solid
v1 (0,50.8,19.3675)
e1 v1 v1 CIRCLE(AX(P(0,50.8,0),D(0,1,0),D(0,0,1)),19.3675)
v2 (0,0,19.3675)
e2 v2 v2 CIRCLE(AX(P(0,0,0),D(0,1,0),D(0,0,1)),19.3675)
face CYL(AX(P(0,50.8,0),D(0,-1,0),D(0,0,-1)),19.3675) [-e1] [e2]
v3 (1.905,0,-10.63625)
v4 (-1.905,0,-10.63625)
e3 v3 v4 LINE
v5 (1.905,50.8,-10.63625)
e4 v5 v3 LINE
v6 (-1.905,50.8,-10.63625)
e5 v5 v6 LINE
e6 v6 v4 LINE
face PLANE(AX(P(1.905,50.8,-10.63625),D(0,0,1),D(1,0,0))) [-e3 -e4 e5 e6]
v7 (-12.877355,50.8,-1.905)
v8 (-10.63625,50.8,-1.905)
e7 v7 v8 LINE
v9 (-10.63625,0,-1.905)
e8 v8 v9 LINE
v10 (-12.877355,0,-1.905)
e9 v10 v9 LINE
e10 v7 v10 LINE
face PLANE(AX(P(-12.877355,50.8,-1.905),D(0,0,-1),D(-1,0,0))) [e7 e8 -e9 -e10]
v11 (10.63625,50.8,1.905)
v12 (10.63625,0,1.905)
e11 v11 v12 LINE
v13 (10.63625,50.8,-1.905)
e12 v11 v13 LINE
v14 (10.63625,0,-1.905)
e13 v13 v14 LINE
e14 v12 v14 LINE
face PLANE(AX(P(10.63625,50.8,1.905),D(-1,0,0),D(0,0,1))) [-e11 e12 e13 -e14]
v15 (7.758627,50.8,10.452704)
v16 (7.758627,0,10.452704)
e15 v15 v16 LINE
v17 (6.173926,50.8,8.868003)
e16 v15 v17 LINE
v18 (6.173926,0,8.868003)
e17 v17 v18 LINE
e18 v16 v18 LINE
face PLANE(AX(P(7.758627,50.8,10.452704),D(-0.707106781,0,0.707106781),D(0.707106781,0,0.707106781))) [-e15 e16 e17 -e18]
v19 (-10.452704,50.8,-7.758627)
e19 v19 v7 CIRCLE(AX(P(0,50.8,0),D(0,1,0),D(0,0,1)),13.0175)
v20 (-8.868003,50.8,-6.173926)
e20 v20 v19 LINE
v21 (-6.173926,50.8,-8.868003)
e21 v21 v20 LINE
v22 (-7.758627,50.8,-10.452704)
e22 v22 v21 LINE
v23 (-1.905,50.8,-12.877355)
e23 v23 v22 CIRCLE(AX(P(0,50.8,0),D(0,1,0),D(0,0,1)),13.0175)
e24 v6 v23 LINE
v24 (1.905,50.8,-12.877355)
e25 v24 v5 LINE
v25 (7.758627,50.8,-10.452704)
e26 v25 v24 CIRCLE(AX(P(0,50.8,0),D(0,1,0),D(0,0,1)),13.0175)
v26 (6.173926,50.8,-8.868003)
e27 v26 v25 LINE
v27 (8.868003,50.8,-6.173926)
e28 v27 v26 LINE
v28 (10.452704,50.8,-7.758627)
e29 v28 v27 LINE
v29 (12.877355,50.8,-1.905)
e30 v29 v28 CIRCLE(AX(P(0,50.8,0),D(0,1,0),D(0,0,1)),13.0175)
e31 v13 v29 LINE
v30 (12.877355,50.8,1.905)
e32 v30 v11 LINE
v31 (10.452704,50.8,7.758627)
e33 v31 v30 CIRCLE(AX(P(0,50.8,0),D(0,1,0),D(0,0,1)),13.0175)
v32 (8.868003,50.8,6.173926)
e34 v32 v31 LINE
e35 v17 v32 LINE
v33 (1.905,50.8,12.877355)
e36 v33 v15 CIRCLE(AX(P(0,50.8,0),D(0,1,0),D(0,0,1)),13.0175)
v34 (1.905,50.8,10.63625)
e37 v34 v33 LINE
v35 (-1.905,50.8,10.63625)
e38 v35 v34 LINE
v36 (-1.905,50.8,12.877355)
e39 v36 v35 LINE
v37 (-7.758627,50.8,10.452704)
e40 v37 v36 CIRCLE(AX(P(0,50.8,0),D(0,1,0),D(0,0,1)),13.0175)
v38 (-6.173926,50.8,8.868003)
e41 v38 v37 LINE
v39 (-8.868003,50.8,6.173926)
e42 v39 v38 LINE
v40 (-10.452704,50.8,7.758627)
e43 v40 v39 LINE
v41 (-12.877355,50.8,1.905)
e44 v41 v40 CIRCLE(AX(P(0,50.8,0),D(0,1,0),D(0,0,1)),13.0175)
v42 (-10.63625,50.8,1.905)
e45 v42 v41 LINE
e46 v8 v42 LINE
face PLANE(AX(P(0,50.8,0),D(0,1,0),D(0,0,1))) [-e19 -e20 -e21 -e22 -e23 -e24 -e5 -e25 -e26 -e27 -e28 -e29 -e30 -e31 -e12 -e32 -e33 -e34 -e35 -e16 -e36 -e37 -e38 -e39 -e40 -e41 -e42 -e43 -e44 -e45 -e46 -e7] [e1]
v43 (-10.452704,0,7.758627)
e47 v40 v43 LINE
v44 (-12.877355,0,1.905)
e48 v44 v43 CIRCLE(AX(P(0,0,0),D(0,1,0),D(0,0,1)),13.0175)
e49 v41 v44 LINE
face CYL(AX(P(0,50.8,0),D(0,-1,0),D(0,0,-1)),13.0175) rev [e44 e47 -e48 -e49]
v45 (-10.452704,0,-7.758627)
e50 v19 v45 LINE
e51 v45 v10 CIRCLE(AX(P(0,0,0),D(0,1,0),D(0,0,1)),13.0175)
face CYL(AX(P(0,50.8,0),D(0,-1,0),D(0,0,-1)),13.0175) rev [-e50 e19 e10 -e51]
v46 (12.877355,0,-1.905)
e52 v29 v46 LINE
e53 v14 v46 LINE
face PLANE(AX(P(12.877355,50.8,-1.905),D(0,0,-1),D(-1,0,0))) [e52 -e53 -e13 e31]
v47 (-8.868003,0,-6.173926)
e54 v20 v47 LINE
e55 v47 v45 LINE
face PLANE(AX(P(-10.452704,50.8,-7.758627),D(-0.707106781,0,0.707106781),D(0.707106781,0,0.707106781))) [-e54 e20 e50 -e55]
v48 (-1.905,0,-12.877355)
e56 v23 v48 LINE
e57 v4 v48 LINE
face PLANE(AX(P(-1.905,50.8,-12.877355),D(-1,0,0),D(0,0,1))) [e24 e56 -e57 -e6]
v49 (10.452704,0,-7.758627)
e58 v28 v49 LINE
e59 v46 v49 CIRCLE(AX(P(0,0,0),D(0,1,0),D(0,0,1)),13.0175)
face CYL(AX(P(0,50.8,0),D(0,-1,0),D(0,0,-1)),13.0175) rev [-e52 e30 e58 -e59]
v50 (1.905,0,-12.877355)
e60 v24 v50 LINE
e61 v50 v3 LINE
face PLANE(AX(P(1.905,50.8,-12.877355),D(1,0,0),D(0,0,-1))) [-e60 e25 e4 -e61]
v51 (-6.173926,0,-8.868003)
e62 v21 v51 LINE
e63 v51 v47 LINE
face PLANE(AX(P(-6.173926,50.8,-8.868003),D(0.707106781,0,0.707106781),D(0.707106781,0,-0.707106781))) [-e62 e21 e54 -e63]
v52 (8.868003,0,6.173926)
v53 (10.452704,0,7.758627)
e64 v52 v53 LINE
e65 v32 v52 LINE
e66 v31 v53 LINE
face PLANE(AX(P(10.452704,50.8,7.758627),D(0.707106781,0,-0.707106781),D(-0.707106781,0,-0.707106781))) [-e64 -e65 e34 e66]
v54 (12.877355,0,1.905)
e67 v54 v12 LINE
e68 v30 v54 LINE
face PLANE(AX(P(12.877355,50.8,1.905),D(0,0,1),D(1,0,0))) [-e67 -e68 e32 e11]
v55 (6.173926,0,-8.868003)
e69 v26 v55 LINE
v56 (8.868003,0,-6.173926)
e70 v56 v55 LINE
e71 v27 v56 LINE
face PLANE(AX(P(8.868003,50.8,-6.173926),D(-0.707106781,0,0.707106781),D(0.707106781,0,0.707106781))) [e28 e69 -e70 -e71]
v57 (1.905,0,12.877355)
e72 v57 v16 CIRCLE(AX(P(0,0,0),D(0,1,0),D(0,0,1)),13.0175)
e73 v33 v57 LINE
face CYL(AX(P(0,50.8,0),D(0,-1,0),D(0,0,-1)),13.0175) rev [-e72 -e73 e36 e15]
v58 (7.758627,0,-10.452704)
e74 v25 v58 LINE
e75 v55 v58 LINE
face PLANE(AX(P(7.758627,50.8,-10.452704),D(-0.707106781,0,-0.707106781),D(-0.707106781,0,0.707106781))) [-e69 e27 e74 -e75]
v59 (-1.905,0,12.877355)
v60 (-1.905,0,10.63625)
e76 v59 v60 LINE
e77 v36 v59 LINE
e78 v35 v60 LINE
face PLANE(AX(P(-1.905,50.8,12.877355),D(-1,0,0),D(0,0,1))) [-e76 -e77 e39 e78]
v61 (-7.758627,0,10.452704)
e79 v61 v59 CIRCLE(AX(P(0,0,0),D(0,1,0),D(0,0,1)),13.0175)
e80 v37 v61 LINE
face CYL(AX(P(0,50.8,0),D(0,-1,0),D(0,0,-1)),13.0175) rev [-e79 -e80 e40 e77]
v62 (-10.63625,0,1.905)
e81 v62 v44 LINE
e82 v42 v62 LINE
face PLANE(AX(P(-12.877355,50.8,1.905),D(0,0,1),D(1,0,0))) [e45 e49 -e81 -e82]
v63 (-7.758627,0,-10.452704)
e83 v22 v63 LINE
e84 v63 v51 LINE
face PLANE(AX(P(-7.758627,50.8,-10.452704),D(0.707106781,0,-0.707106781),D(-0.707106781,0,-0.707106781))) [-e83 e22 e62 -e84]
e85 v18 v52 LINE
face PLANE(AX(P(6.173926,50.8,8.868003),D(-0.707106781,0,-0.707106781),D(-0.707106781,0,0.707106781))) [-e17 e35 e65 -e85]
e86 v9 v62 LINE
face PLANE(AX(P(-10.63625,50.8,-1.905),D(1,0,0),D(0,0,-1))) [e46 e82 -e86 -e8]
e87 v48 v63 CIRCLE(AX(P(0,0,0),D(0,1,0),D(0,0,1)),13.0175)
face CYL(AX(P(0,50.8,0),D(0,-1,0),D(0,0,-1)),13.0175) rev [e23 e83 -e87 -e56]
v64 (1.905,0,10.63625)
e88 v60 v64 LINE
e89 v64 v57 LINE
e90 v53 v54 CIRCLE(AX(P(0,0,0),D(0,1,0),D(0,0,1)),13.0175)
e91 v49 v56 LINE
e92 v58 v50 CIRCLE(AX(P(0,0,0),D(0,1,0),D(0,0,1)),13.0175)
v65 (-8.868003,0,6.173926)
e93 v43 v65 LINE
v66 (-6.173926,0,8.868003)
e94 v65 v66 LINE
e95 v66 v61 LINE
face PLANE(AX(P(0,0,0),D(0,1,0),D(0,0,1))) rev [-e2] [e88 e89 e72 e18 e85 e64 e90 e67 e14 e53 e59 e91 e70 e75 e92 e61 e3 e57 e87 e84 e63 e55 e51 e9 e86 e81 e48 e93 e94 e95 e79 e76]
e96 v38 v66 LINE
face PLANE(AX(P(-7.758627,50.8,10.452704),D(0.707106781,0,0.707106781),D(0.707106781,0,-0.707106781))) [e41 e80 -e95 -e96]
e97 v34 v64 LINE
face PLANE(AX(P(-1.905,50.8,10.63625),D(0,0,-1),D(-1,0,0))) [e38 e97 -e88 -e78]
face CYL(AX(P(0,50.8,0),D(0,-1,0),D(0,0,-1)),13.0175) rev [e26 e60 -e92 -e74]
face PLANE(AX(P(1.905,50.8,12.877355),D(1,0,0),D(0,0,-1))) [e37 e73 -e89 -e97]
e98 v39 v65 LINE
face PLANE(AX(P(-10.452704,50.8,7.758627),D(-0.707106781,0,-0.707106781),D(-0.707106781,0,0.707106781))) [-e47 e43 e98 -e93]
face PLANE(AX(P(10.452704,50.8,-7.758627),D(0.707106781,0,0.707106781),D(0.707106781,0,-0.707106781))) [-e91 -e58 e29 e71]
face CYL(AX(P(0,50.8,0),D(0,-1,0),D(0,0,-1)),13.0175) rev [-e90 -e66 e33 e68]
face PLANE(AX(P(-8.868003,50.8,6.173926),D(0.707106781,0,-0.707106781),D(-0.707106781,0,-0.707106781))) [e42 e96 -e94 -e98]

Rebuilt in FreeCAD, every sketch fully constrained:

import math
import FreeCAD as App
import Part
import Sketcher
from FreeCAD import Vector
Q = App.Units.Quantity

doc = App.newDocument("Part")
body = doc.addObject("PartDesign::Body", "Body")

# Sketch on XZ plane
sketch1 = doc.addObject("Sketcher::SketchObject", "Sketch")
body.addObject(sketch1)
sketch1.AttachmentSupport = (doc.XZ_Plane, [""])
sketch1.MapMode = "FlatFace"
sketch1.addGeometry([
    Part.Circle(Vector(0, 0, 0), Vector(0, 0, 1), 19.4),  # 0
    Part.LineSegment(Vector(1.9, -10.6, 0), Vector(1.9, -12.9, 0)),  # 1
    Part.ArcOfCircle(Part.Circle(Vector(0, 0, 0), Vector(0, 0, 1), 13), math.radians(-82), math.radians(-53)),  # 2
    Part.LineSegment(Vector(7.8, -10.5, 0), Vector(6.2, -8.9, 0)),  # 3
    Part.LineSegment(Vector(6.2, -8.9, 0), Vector(8.9, -6.2, 0)),  # 4
    Part.LineSegment(Vector(8.9, -6.2, 0), Vector(10.5, -7.8, 0)),  # 5
    Part.ArcOfCircle(Part.Circle(Vector(0, 0, 0), Vector(0, 0, 1), 13), math.radians(-37), math.radians(-8)),  # 6
    Part.LineSegment(Vector(12.9, -1.9, 0), Vector(10.6, -1.9, 0)),  # 7
    Part.LineSegment(Vector(10.6, -1.9, 0), Vector(10.6, 1.9, 0)),  # 8
    Part.LineSegment(Vector(10.6, 1.9, 0), Vector(12.9, 1.9, 0)),  # 9
    Part.ArcOfCircle(Part.Circle(Vector(0, 0, 0), Vector(0, 0, 1), 13), math.radians(8), math.radians(37)),  # 10
    Part.LineSegment(Vector(10.5, 7.8, 0), Vector(8.9, 6.2, 0)),  # 11
    Part.LineSegment(Vector(8.9, 6.2, 0), Vector(6.2, 8.9, 0)),  # 12
    Part.LineSegment(Vector(6.2, 8.9, 0), Vector(7.8, 10.5, 0)),  # 13
    Part.ArcOfCircle(Part.Circle(Vector(0, 0, 0), Vector(0, 0, 1), 13), math.radians(53), math.radians(82)),  # 14
    Part.LineSegment(Vector(1.9, 12.9, 0), Vector(1.9, 10.6, 0)),  # 15
    Part.LineSegment(Vector(1.9, 10.6, 0), Vector(-1.9, 10.6, 0)),  # 16
    Part.LineSegment(Vector(-1.9, 10.6, 0), Vector(-1.9, 12.9, 0)),  # 17
    Part.ArcOfCircle(Part.Circle(Vector(0, 0, 0), Vector(0, 0, 1), 13), math.radians(98), math.radians(127)),  # 18
    Part.LineSegment(Vector(-7.8, 10.5, 0), Vector(-6.2, 8.9, 0)),  # 19
    Part.LineSegment(Vector(-6.2, 8.9, 0), Vector(-8.9, 6.2, 0)),  # 20
    Part.LineSegment(Vector(-8.9, 6.2, 0), Vector(-10.5, 7.8, 0)),  # 21
    Part.ArcOfCircle(Part.Circle(Vector(0, 0, 0), Vector(0, 0, 1), 13), math.radians(143), math.radians(172)),  # 22
    Part.LineSegment(Vector(-12.9, 1.9, 0), Vector(-10.6, 1.9, 0)),  # 23
    Part.LineSegment(Vector(-10.6, 1.9, 0), Vector(-10.6, -1.9, 0)),  # 24
    Part.LineSegment(Vector(-10.6, -1.9, 0), Vector(-12.9, -1.9, 0)),  # 25
    Part.ArcOfCircle(Part.Circle(Vector(0, 0, 0), Vector(0, 0, 1), 13), math.radians(-172), math.radians(-143)),  # 26
    Part.LineSegment(Vector(-10.5, -7.8, 0), Vector(-8.9, -6.2, 0)),  # 27
    Part.LineSegment(Vector(-8.9, -6.2, 0), Vector(-6.2, -8.9, 0)),  # 28
    Part.LineSegment(Vector(-6.2, -8.9, 0), Vector(-7.8, -10.5, 0)),  # 29
    Part.ArcOfCircle(Part.Circle(Vector(0, 0, 0), Vector(0, 0, 1), 13), math.radians(-127), math.radians(-98)),  # 30
    Part.LineSegment(Vector(-1.9, -12.9, 0), Vector(-1.9, -10.6, 0)),  # 31
    Part.LineSegment(Vector(-1.9, -10.6, 0), Vector(1.9, -10.6, 0)),  # 32
], False)
sketch1.addConstraint([
    Sketcher.Constraint("Coincident", 1, 2, 2, 1),
    Sketcher.Constraint("Coincident", 2, 2, 3, 1),
    Sketcher.Constraint("Coincident", 3, 2, 4, 1),
    Sketcher.Constraint("Coincident", 4, 2, 5, 1),
    Sketcher.Constraint("Coincident", 5, 2, 6, 1),
    Sketcher.Constraint("Coincident", 6, 2, 7, 1),
    Sketcher.Constraint("Coincident", 7, 2, 8, 1),
    Sketcher.Constraint("Coincident", 8, 2, 9, 1),
    Sketcher.Constraint("Coincident", 9, 2, 10, 1),
    Sketcher.Constraint("Coincident", 10, 2, 11, 1),
    Sketcher.Constraint("Coincident", 11, 2, 12, 1),
    Sketcher.Constraint("Coincident", 12, 2, 13, 1),
    Sketcher.Constraint("Coincident", 13, 2, 14, 1),
    Sketcher.Constraint("Coincident", 14, 2, 15, 1),
    Sketcher.Constraint("Coincident", 15, 2, 16, 1),
    Sketcher.Constraint("Coincident", 16, 2, 17, 1),
    Sketcher.Constraint("Coincident", 17, 2, 18, 1),
    Sketcher.Constraint("Coincident", 18, 2, 19, 1),
    Sketcher.Constraint("Coincident", 19, 2, 20, 1),
    Sketcher.Constraint("Coincident", 20, 2, 21, 1),
    Sketcher.Constraint("Coincident", 21, 2, 22, 1),
    Sketcher.Constraint("Coincident", 22, 2, 23, 1),
    Sketcher.Constraint("Coincident", 23, 2, 24, 1),
    Sketcher.Constraint("Coincident", 24, 2, 25, 1),
    Sketcher.Constraint("Coincident", 25, 2, 26, 1),
    Sketcher.Constraint("Coincident", 26, 2, 27, 1),
    Sketcher.Constraint("Coincident", 27, 2, 28, 1),
    Sketcher.Constraint("Coincident", 28, 2, 29, 1),
    Sketcher.Constraint("Coincident", 29, 2, 30, 1),
    Sketcher.Constraint("Coincident", 30, 2, 31, 1),
    Sketcher.Constraint("Coincident", 31, 2, 32, 1),
    Sketcher.Constraint("Coincident", 32, 2, 1, 1),
    Sketcher.Constraint("Vertical", 1),
    Sketcher.Constraint("Horizontal", 7),
    Sketcher.Constraint("Vertical", 8),
    Sketcher.Constraint("Horizontal", 9),
    Sketcher.Constraint("Vertical", 15),
    Sketcher.Constraint("Horizontal", 16),
    Sketcher.Constraint("Vertical", 17),
    Sketcher.Constraint("Horizontal", 23),
    Sketcher.Constraint("Vertical", 24),
    Sketcher.Constraint("Horizontal", 25),
    Sketcher.Constraint("Vertical", 31),
    Sketcher.Constraint("Horizontal", 32),
    Sketcher.Constraint("Coincident", 0, 3, -1, 1),
    Sketcher.Constraint("Coincident", 2, 3, -1, 1),
    Sketcher.Constraint("Coincident", 6, 3, -1, 1),
    Sketcher.Constraint("Coincident", 10, 3, -1, 1),
    Sketcher.Constraint("Coincident", 14, 3, -1, 1),
    Sketcher.Constraint("Coincident", 18, 3, -1, 1),
    Sketcher.Constraint("Coincident", 22, 3, -1, 1),
    Sketcher.Constraint("Coincident", 26, 3, -1, 1),
    Sketcher.Constraint("Coincident", 30, 3, -1, 1),
    Sketcher.Constraint("Equal", 2, 6),
    Sketcher.Constraint("Equal", 6, 10),
    Sketcher.Constraint("Equal", 10, 14),
    Sketcher.Constraint("Equal", 14, 18),
    Sketcher.Constraint("Equal", 18, 22),
    Sketcher.Constraint("Equal", 22, 26),
    Sketcher.Constraint("Equal", 26, 30),
    Sketcher.Constraint("Symmetric", 3, 2, 19, 2, -1, 1),
    Sketcher.Constraint("Symmetric", 4, 2, 20, 2, -1, 1),
    Sketcher.Constraint("Symmetric", 7, 2, 23, 2, -1, 1),
    Sketcher.Constraint("Symmetric", 11, 2, 27, 2, -1, 1),
    Sketcher.Constraint("Symmetric", 12, 2, 28, 2, -1, 1),
    Sketcher.Constraint("Symmetric", 15, 2, 31, 2, -1, 1),
    Sketcher.Constraint("Symmetric", 12, 2, 19, 2, -2),
    Sketcher.Constraint("Symmetric", 11, 2, 20, 2, -2),
    Sketcher.Constraint("Perpendicular", 3, 4),
    Sketcher.Constraint("Perpendicular", 4, 5),
    Sketcher.Constraint("Perpendicular", 5, 11),
    Sketcher.Constraint("Perpendicular", 11, 12),
    Sketcher.Constraint("Perpendicular", 12, 13),
    Sketcher.Constraint("Perpendicular", 13, 19),
    Sketcher.Constraint("Perpendicular", 20, 21),
    Sketcher.Constraint("Perpendicular", 21, 27),
    Sketcher.Constraint("Perpendicular", 28, 29),
    Sketcher.Constraint("Horizontal", 14, 2, 17, 2),
    Sketcher.Constraint("Horizontal", 9, 2, 22, 2),
    Sketcher.Constraint("Horizontal", 7, 2, 24, 2),
    Sketcher.Constraint("Horizontal", 1, 2, 30, 2),
    Sketcher.Constraint("Equal", 25, 1),
    Sketcher.Constraint("Equal", 32, 8),
    Sketcher.Constraint("Equal", 3, 5),
    Sketcher.Constraint("Diameter", 0, Q("1.525 in")),
    Sketcher.Constraint("DistanceX", 16, 2, 16, 1, Q("0.15 in")),
    Sketcher.Constraint("Radius", 2, Q("0.5125 in")),
    Sketcher.Constraint("Distance", 4, Q("0.15 in")),
    Sketcher.Constraint("DistanceX", 3, 2, 2, 2, 1.584701),
    Sketcher.Constraint("DistanceX", 7, 2, 7, 1, 2.241105),
])
pad1 = doc.addObject("PartDesign::Pad", "Pad")
body.addObject(pad1)
pad1.Profile = sketch1
pad1.Length = Q("2 in")
pad1.Reversed = True

doc.recompute()
